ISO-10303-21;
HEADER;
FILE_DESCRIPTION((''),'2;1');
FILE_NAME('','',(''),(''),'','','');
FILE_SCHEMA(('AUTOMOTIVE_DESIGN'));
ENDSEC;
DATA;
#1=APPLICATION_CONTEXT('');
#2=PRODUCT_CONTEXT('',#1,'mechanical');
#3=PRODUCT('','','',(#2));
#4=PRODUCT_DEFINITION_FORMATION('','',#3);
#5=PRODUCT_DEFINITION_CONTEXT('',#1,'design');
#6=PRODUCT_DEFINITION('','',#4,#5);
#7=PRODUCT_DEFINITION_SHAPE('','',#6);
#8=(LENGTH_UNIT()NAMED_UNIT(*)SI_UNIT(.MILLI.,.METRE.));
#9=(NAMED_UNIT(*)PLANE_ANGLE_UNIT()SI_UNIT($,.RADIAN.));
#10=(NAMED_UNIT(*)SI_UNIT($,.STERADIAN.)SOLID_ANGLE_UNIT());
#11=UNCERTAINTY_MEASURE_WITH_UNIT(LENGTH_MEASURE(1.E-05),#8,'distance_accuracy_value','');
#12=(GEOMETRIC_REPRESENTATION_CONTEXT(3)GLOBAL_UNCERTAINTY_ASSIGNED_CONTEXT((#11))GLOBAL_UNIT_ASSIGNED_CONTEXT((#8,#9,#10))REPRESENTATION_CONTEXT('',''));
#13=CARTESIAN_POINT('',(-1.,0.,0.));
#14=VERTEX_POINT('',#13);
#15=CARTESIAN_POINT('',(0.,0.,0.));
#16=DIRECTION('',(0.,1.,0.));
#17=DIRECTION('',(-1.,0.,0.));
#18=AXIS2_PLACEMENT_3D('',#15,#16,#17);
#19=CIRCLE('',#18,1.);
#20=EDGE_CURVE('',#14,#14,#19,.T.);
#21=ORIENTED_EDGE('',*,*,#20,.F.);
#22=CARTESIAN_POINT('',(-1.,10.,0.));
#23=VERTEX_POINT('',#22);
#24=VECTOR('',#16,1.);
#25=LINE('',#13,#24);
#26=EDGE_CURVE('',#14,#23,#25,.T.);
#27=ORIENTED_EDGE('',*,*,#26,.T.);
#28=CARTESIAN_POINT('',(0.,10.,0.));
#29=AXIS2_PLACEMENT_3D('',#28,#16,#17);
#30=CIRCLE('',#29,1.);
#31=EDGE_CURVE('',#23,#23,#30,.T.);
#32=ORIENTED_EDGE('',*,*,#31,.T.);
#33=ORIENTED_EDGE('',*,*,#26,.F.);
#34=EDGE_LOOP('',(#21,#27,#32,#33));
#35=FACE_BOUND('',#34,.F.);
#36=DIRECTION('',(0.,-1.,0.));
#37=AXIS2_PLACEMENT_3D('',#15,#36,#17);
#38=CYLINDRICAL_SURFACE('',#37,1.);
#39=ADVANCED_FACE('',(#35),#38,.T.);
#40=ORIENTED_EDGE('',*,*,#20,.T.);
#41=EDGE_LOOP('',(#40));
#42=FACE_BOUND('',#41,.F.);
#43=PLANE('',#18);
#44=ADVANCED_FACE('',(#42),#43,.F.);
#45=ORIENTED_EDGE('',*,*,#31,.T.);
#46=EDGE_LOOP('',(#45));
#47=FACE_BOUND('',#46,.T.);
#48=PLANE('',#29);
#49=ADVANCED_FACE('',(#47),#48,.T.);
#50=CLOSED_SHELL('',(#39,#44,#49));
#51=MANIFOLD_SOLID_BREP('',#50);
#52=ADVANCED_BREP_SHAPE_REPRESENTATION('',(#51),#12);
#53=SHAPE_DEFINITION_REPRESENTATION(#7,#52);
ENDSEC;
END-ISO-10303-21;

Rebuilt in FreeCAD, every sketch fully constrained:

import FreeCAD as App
import Part
import Sketcher
from FreeCAD import Vector

doc = App.newDocument("Part")
body = doc.addObject("PartDesign::Body", "Body")

# Sketch on XZ plane
sketch1 = body.newObject("Sketcher::SketchObject", "Sketch")
sketch1.AttachmentSupport = (doc.getObject("XZ_Plane"), [""])
sketch1.MapMode = "FlatFace"
sketch1.addGeometry(Part.Circle(Vector(0, 0, 0), Vector(0, 0, 1), 1), False)
sketch1.addConstraint([
    Sketcher.Constraint("Coincident", 0, 3, -1, 1),
    Sketcher.Constraint("Diameter", 0, 2.0),
])
pad1 = body.newObject("PartDesign::Pad", "Pad")
pad1.Profile = sketch1
pad1.Length = 10
pad1.Reversed = True

doc.recompute()
